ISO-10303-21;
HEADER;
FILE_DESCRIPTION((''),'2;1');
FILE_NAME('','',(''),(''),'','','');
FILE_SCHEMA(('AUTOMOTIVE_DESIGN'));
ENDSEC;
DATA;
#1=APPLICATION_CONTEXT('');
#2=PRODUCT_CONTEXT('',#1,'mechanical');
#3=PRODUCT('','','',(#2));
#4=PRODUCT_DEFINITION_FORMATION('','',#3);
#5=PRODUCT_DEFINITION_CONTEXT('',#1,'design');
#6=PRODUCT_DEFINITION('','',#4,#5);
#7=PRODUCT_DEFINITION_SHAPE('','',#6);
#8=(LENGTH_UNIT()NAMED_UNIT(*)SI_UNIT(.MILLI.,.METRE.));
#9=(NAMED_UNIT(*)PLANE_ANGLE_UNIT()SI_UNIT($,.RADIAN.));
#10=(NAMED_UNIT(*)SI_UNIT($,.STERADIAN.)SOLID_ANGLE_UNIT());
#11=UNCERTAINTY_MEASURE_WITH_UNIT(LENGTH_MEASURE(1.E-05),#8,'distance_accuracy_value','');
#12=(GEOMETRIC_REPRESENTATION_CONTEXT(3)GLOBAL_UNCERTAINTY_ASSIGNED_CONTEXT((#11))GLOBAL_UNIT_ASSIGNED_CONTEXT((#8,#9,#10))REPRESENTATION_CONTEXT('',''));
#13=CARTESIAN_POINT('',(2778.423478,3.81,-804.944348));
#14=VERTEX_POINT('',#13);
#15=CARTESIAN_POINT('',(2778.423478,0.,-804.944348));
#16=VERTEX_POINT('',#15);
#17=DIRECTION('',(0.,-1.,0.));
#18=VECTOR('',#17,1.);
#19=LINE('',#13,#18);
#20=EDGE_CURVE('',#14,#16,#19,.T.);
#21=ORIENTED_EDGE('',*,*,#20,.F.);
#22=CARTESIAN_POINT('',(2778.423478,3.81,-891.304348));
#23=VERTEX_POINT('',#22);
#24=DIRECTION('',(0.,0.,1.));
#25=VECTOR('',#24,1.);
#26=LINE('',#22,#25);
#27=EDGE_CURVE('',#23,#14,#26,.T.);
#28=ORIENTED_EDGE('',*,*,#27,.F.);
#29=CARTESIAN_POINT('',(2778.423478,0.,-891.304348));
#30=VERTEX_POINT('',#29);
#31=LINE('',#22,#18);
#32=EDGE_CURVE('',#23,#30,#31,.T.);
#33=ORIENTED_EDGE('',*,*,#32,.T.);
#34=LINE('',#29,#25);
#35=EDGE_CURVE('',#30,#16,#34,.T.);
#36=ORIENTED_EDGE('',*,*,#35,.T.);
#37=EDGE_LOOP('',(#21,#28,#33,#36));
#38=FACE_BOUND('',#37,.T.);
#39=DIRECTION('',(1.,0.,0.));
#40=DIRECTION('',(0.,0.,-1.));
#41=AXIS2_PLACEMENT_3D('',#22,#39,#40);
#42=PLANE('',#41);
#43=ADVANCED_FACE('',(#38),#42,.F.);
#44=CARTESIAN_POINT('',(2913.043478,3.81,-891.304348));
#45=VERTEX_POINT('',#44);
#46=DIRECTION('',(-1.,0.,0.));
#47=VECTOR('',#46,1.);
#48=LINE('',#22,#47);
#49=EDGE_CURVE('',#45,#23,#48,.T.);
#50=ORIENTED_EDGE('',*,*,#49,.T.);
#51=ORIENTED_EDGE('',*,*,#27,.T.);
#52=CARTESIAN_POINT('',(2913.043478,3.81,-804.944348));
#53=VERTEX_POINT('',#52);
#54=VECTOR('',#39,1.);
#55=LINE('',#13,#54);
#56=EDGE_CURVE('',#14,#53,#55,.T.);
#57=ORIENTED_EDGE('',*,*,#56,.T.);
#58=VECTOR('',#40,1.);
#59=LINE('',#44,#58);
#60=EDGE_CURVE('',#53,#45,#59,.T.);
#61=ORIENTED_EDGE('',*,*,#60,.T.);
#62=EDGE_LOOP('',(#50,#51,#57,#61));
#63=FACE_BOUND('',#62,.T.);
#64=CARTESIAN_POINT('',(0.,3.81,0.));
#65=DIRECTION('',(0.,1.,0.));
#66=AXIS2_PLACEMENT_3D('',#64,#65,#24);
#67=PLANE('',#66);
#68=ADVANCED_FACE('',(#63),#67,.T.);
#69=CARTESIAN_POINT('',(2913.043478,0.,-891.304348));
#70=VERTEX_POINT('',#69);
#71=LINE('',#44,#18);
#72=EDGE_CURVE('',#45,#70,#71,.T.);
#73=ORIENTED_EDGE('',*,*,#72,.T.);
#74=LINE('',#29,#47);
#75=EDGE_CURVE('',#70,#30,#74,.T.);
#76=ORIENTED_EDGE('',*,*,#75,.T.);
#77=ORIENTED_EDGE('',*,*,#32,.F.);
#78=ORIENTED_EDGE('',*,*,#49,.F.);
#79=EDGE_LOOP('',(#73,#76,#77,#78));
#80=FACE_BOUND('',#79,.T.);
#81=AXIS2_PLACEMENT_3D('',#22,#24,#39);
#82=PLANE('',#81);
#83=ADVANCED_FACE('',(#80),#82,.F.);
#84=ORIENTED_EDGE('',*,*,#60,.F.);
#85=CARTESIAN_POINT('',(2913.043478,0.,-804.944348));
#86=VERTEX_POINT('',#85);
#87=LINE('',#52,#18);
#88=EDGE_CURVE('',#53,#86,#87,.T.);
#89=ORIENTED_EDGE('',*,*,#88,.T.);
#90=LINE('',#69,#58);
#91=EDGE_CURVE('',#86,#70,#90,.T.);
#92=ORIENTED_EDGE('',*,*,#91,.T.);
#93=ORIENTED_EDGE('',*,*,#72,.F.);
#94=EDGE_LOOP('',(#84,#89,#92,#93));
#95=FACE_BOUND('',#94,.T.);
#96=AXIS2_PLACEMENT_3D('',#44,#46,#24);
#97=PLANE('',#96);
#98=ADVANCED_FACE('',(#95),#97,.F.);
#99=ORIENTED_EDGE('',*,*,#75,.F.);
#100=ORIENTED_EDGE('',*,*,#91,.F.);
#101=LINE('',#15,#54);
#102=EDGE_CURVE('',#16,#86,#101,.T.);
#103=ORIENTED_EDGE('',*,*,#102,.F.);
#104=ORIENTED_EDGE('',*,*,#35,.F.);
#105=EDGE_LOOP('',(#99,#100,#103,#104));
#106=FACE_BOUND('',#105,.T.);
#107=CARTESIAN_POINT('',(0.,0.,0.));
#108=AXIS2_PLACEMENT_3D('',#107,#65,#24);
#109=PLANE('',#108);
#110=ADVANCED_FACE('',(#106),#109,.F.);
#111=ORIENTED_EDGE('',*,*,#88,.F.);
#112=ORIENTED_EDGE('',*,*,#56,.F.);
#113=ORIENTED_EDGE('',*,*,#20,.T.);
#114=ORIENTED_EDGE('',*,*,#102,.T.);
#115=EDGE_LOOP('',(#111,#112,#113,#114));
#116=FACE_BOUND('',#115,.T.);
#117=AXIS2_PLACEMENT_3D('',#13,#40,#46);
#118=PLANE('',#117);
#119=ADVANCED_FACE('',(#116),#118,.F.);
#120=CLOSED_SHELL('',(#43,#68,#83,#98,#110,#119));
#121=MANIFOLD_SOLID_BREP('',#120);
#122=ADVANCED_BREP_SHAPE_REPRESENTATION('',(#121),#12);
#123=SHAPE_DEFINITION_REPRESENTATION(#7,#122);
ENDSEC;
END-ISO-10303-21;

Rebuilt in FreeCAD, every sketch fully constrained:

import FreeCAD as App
import Part
import Sketcher
Q = App.Units.Quantity

doc = App.newDocument("Part")
body = doc.addObject("PartDesign::Body", "Body")

# Sketch on XZ plane
sketch1 = doc.addObject("Sketcher::SketchObject", "Sketch")
body.addObject(sketch1)
sketch1.AttachmentSupport = (doc.XZ_Plane, [""])
sketch1.MapMode = "FlatFace"
sketch1.addGeometry([
    Part.LineSegment(App.Vector(2778.423478, -891.304348, 0), App.Vector(2778.423478, -804.944348, 0)),
    Part.LineSegment(App.Vector(2778.423478, -804.944348, 0), App.Vector(2913.043478, -804.944348, 0)),
    Part.LineSegment(App.Vector(2913.043478, -804.944348, 0), App.Vector(2913.043478, -891.304348, 0)),
    Part.LineSegment(App.Vector(2913.043478, -891.304348, 0), App.Vector(2778.423478, -891.304348, 0)),
], False)
sketch1.addConstraint([
    Sketcher.Constraint("Coincident", 0, 2, 1, 1),
    Sketcher.Constraint("Coincident", 1, 2, 2, 1),
    Sketcher.Constraint("Coincident", 2, 2, 3, 1),
    Sketcher.Constraint("Coincident", 3, 2, 0, 1),
    Sketcher.Constraint("Vertical", 0),
    Sketcher.Constraint("Horizontal", 1),
    Sketcher.Constraint("Vertical", 2),
    Sketcher.Constraint("Horizontal", 3),
    Sketcher.Constraint("DistanceX", 1, 1, 1, 2, Q("5.3 in")),
    Sketcher.Constraint("DistanceY", 0, 1, 0, 2, Q("3.4 in")),
    Sketcher.Constraint("DistanceX", -1, 1, 0, 2, 2778.423478),
    Sketcher.Constraint("DistanceY", 0, 2, -1, 1, 804.944348),
])
pad1 = doc.addObject("PartDesign::Pad", "Pad")
body.addObject(pad1)
pad1.Profile = sketch1
pad1.Length = Q("0.15 in")
pad1.Reversed = True

doc.recompute()
